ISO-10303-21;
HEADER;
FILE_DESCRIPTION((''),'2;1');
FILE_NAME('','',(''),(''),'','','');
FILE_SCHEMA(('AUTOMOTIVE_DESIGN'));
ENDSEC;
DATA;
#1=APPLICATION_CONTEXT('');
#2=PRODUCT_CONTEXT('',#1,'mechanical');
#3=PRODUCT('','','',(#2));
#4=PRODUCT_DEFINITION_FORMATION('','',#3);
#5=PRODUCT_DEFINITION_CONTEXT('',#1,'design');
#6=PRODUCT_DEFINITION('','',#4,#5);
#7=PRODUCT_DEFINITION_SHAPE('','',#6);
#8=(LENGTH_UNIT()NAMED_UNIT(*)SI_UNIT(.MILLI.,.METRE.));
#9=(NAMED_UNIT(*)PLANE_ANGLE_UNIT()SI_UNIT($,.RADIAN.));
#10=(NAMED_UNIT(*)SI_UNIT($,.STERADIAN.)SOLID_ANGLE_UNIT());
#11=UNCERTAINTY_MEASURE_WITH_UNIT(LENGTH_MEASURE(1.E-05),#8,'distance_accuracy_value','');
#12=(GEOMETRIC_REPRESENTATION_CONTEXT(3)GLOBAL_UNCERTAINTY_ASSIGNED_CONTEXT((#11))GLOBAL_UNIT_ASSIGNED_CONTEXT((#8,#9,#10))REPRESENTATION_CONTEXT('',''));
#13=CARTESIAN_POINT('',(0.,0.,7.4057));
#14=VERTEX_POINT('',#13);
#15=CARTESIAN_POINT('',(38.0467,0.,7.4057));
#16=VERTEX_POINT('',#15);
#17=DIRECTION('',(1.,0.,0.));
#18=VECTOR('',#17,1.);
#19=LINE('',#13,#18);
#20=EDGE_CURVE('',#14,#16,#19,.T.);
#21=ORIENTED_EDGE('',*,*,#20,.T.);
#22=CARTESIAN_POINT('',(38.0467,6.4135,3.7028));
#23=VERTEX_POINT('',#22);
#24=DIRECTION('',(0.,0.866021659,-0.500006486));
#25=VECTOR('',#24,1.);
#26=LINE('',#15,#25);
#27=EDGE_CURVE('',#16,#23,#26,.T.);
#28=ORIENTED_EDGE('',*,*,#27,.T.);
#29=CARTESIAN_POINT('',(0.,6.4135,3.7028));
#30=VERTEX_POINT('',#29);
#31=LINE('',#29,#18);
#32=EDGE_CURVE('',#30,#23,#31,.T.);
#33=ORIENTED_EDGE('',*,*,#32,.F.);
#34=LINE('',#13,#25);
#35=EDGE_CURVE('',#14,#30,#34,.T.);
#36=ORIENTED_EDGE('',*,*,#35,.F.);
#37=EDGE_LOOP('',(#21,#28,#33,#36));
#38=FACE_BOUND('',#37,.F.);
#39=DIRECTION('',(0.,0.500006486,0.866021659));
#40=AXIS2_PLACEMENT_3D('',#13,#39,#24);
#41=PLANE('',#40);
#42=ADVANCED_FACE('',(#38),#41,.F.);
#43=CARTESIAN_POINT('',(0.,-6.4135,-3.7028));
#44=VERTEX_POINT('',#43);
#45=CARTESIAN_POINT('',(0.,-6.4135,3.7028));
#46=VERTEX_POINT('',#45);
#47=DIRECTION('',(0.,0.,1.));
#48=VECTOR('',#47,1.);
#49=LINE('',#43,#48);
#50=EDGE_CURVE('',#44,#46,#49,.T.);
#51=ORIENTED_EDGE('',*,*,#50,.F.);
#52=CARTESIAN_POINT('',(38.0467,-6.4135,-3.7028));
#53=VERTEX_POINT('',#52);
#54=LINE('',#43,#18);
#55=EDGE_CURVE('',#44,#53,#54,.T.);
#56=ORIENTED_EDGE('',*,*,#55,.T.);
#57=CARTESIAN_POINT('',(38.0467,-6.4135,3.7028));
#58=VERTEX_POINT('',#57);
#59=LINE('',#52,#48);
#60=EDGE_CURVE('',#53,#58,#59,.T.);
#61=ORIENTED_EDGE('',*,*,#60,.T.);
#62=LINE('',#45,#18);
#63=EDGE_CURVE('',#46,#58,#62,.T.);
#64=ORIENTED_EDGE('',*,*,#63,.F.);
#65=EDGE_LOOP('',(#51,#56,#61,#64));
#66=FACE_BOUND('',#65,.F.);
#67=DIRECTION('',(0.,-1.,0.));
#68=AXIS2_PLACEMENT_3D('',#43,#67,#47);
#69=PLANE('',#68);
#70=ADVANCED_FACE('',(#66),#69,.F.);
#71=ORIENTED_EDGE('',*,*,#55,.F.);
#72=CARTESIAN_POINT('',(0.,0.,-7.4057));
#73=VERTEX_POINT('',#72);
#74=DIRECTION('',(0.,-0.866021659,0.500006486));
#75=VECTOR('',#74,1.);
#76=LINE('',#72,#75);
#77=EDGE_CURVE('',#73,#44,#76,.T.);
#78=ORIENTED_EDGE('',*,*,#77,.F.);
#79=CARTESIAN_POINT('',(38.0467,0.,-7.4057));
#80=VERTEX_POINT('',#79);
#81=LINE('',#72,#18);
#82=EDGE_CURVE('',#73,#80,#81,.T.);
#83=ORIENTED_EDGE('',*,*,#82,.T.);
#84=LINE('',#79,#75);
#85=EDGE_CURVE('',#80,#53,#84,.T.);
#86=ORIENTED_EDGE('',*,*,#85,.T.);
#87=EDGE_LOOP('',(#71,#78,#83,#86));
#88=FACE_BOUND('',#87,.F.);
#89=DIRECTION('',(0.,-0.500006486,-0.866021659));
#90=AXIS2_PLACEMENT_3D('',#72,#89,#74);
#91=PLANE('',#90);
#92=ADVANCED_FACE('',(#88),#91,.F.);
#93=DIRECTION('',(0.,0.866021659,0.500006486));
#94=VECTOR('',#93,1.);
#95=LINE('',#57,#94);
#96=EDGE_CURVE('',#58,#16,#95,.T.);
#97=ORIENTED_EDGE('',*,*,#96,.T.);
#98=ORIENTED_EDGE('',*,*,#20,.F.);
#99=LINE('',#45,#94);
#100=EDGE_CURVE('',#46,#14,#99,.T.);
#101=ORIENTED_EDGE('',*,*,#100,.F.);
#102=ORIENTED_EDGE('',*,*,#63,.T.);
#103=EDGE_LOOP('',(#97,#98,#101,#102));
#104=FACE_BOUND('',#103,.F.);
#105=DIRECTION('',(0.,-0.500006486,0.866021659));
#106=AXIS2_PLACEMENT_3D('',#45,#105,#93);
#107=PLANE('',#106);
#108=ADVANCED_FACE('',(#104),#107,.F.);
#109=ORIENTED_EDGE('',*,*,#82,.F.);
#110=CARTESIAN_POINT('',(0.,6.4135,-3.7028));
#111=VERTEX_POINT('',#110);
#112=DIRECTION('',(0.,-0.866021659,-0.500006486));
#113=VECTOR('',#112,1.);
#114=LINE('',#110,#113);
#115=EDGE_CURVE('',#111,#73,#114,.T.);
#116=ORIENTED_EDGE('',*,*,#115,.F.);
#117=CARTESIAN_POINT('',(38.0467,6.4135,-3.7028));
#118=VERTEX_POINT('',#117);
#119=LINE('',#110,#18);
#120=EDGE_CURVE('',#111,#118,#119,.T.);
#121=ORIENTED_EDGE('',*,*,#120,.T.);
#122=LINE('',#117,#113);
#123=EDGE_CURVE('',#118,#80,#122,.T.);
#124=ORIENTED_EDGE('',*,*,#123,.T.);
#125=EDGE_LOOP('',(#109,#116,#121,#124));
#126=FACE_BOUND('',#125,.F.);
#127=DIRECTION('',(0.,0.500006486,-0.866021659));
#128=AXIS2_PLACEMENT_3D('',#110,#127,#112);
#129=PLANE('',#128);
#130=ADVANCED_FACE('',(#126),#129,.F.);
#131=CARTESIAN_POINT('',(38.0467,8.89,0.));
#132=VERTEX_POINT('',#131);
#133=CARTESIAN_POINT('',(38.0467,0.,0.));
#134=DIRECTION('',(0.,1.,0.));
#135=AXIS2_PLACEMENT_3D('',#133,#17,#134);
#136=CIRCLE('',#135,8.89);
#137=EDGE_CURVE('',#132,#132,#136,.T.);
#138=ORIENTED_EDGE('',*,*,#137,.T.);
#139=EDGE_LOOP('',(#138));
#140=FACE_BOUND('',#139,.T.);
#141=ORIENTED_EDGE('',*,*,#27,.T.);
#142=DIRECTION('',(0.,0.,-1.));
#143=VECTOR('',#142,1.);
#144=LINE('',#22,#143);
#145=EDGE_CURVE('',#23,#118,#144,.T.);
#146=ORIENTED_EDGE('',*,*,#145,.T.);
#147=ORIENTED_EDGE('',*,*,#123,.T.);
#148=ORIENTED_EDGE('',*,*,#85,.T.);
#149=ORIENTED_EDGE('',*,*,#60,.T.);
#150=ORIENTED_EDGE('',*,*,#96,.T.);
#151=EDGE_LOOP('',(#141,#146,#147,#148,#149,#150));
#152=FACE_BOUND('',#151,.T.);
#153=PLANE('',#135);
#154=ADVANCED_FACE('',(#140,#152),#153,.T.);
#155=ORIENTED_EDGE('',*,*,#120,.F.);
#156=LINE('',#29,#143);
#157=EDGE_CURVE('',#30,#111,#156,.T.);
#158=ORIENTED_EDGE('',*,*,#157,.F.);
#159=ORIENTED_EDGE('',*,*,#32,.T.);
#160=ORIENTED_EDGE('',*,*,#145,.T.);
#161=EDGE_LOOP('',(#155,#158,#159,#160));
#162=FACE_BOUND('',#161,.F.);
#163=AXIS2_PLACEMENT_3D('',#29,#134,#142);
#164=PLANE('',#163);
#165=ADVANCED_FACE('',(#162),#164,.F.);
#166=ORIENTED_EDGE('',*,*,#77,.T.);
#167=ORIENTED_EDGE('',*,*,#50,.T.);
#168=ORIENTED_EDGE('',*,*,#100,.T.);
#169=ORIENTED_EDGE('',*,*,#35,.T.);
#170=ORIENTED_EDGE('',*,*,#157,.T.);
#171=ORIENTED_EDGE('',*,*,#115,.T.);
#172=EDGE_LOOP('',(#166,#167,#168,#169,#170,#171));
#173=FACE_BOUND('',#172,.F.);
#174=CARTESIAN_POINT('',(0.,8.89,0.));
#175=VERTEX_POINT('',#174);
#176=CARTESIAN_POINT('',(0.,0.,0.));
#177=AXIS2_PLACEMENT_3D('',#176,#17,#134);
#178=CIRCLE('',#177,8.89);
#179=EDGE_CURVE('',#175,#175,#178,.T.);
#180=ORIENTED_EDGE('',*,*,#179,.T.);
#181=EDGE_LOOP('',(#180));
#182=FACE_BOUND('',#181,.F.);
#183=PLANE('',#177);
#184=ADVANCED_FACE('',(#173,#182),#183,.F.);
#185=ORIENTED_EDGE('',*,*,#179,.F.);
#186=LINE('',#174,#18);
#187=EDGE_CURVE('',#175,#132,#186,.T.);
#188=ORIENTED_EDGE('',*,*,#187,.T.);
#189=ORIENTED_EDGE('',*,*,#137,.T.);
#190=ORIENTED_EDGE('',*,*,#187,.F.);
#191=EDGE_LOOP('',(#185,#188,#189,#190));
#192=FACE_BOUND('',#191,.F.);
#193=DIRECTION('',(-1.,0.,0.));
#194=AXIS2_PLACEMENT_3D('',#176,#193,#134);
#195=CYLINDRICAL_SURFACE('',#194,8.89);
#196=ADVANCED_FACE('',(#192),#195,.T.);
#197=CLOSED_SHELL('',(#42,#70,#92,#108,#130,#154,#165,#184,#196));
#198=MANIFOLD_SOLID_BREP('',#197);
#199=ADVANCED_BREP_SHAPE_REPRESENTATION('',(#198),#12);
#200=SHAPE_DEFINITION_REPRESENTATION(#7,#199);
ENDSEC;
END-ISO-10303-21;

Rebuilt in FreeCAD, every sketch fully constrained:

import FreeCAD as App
import Part
import Sketcher
Q = App.Units.Quantity


def add_polygon(sketch, points):
    """Adds a closed chain of lines whose ends are joined by coincident constraints."""
    first, n = sketch.GeometryCount, len(points)
    for a, b in zip(points, points[1:] + points[:1]):
        sketch.addGeometry(Part.LineSegment(App.Vector(*a, 0), App.Vector(*b, 0)), False)
    for i in range(n):
        sketch.addConstraint(Sketcher.Constraint("Coincident", first + i, 2, first + (i + 1) % n, 1))

doc = App.newDocument("Part")
body = doc.addObject("PartDesign::Body", "Body")

sketch1 = body.newObject("Sketcher::SketchObject", "Sketch")
sketch1.AttachmentSupport = (doc.getObject("YZ_Plane"), [""])
sketch1.MapMode = "FlatFace"
sketch1.addGeometry(Part.Circle(App.Vector(0, 0, 0), App.Vector(0, 0, 1), 9), False)
add_polygon(sketch1, [(6, 4), (6, -4), (0, -7), (-6, -4), (-6, 4), (0, 7)])
sketch1.addConstraint(Sketcher.Constraint("Vertical", 1))
sketch1.addConstraint(Sketcher.Constraint("Vertical", 4))
sketch1.addConstraint(Sketcher.Constraint("Coincident", 0, 3, -1, 1))
sketch1.addConstraint(Sketcher.Constraint("Symmetric", 1, 2, 4, 2, -1, 1))
sketch1.addConstraint(Sketcher.Constraint("Symmetric", 2, 2, 5, 2, -1, 1))
sketch1.addConstraint(Sketcher.Constraint("PointOnObject", 2, 2, -2))
sketch1.addConstraint(Sketcher.Constraint("Parallel", 3, 6))
sketch1.addConstraint(Sketcher.Constraint("Horizontal", 1, 2, 3, 2))
sketch1.addConstraint(Sketcher.Constraint("Diameter", 0, Q("0.7 in")))
sketch1.addConstraint(Sketcher.Constraint("Angle", 2, Q("-149.9996 deg")))
sketch1.addConstraint(Sketcher.Constraint("DistanceX", 3, 2, 1, 2, Q("0.505 in")))
sketch1.addConstraint(Sketcher.Constraint("DistanceY", 1, 2, 1, 1, 7.4056))
pad1 = body.newObject("PartDesign::Pad", "Pad")
pad1.Profile = sketch1
pad1.Length = Q("1.4979016 in")

doc.recompute()
